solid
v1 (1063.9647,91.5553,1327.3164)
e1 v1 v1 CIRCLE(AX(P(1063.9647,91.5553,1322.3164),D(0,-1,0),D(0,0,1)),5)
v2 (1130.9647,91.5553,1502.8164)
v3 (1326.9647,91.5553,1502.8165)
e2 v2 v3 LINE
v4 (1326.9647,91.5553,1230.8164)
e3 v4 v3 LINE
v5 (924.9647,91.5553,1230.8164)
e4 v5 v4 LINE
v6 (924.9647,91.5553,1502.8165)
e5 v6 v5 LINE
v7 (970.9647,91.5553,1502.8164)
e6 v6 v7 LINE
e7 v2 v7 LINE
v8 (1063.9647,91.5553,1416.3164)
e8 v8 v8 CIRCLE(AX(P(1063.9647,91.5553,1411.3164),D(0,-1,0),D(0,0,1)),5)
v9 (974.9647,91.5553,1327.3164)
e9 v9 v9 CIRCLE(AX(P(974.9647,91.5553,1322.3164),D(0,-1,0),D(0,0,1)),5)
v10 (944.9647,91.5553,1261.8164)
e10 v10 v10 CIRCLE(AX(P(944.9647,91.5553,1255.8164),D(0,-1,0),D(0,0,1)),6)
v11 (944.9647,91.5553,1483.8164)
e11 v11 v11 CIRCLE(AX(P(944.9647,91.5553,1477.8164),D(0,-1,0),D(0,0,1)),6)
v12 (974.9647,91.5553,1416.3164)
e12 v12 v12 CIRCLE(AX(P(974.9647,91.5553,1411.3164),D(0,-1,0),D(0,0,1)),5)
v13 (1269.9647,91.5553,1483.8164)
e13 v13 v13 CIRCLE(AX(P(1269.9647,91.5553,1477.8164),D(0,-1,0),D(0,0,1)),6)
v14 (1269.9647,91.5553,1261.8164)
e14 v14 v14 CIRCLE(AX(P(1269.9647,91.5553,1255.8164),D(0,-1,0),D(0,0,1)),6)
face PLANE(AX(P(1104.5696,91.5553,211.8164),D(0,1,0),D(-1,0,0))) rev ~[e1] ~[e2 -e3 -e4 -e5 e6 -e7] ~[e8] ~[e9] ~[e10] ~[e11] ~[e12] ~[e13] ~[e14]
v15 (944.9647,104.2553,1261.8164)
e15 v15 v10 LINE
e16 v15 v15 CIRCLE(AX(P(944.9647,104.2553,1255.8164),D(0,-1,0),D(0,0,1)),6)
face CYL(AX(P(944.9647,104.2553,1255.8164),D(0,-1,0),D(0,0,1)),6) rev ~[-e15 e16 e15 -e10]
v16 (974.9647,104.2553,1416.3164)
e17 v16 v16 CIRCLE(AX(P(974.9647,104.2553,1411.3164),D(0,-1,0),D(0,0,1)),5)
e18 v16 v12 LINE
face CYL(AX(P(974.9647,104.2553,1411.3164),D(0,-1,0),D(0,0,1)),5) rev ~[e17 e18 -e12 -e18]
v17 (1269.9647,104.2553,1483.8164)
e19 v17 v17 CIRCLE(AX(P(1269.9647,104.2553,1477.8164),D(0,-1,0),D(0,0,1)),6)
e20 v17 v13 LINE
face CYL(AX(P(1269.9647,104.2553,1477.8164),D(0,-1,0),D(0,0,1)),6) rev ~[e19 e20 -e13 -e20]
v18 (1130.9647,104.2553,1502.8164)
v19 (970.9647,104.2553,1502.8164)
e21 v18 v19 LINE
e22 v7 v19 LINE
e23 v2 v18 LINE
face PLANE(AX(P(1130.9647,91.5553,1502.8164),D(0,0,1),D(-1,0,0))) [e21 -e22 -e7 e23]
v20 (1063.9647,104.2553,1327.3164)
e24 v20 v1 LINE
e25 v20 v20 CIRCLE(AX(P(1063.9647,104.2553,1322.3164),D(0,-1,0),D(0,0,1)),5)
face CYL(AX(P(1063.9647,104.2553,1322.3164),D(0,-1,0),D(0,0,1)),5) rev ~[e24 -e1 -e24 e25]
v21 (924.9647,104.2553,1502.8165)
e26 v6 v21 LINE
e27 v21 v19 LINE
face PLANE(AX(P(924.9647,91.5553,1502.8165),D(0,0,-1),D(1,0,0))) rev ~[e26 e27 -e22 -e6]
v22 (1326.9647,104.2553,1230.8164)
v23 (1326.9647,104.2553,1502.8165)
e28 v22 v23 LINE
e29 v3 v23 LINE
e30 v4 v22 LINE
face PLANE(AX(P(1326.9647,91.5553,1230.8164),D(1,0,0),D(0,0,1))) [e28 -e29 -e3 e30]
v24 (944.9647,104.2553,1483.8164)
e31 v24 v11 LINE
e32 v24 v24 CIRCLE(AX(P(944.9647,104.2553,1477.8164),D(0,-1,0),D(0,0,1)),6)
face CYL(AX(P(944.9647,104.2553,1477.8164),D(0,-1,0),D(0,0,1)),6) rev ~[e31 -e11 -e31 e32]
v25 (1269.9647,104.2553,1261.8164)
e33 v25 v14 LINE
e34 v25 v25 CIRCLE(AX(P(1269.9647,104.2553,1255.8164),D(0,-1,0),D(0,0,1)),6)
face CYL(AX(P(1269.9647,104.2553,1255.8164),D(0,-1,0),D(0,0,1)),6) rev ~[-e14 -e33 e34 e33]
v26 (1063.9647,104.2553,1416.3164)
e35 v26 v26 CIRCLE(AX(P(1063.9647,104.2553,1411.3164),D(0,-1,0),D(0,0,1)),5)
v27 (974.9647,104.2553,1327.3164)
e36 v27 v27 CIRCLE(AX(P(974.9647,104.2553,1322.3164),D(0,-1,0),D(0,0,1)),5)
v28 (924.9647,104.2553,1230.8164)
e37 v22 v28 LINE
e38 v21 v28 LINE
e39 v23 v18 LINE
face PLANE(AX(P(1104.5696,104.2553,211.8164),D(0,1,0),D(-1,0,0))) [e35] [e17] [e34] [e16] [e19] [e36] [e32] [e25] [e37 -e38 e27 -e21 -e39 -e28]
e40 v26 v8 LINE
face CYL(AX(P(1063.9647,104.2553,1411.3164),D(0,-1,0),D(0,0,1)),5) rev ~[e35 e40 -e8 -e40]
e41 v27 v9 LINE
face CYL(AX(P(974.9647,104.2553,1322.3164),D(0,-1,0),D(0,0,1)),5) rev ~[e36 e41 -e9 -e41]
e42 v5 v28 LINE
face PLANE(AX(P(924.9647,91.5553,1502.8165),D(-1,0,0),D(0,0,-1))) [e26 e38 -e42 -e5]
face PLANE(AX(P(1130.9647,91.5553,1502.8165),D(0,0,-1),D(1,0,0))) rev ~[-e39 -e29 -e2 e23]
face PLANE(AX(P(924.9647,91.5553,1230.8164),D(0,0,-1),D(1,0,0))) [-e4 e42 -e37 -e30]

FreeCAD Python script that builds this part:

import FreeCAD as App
import Part
import Sketcher
from FreeCAD import Vector


def add_polygon(sketch, points):
    """Adds a closed chain of lines whose ends are joined by coincident constraints."""
    first, n = sketch.GeometryCount, len(points)
    for a, b in zip(points, points[1:] + points[:1]):
        sketch.addGeometry(Part.LineSegment(App.Vector(*a, 0), App.Vector(*b, 0)), False)
    for i in range(n):
        sketch.addConstraint(Sketcher.Constraint("Coincident", first + i, 2, first + (i + 1) % n, 1))

doc = App.newDocument("Part")
body = doc.addObject("PartDesign::Body", "Body")

# Sketch on XZ plane
sketch1 = doc.addObject("Sketcher::SketchObject", "Sketch")
body.addObject(sketch1)
sketch1.AttachmentSupport = (doc.XZ_Plane, [""])
sketch1.MapMode = "FlatFace"
sketch1.AttachmentOffset = App.Placement(Vector(0, 0, -91.5553), App.Rotation())
add_polygon(sketch1, [(971, 1503), (1327, 1503), (1327, 1231), (925, 1231), (925, 1503)])  # lines 0-4
sketch1.addConstraint([
    Sketcher.Constraint("Horizontal", 0),
    Sketcher.Constraint("Vertical", 1),
    Sketcher.Constraint("Horizontal", 2),
    Sketcher.Constraint("Vertical", 3),
    Sketcher.Constraint("Horizontal", 4),
    Sketcher.Constraint("DistanceX", 0, 1, 0, 2, 356.0),
    Sketcher.Constraint("DistanceX", 2, 2, 2, 1, 402.0),
    Sketcher.Constraint("DistanceY", 1, 2, 1, 1, 272.0),
    Sketcher.Constraint("DistanceX", -1, 1, 0, 2, 1326.9647),
    Sketcher.Constraint("DistanceY", -1, 1, 0, 2, 1502.8165),
])
pad1 = doc.addObject("PartDesign::Pad", "Pad")
body.addObject(pad1)
pad1.Profile = sketch1
pad1.Length = 12.7
pad1.Reversed = True

# Sketch on XZ plane
sketch2 = doc.addObject("Sketcher::SketchObject", "Sketch001")
body.addObject(sketch2)
sketch2.AttachmentSupport = (doc.XZ_Plane, [""])
sketch2.MapMode = "FlatFace"
sketch2.AttachmentOffset = App.Placement(Vector(0, 0, -104.2553), App.Rotation())
sketch2.addGeometry([
    Part.Circle(Vector(945, 1478, 0), Vector(0, 0, 1), 6),
    Part.Circle(Vector(945, 1256, 0), Vector(0, 0, 1), 6),
    Part.Circle(Vector(1270, 1256, 0), Vector(0, 0, 1), 6),
    Part.Circle(Vector(1270, 1478, 0), Vector(0, 0, 1), 6),
], False)
sketch2.addConstraint([
    Sketcher.Constraint("Equal", 0, 1),
    Sketcher.Constraint("Equal", 1, 2),
    Sketcher.Constraint("Equal", 2, 3),
    Sketcher.Constraint("Horizontal", 1, 3, 2, 3),
    Sketcher.Constraint("Horizontal", 0, 3, 3, 3),
    Sketcher.Constraint("Vertical", 0, 3, 1, 3),
    Sketcher.Constraint("Vertical", 2, 3, 3, 3),
    Sketcher.Constraint("Diameter", 0, 12.0),
    Sketcher.Constraint("DistanceY", 1, 3, 0, 3, 222.0),
    Sketcher.Constraint("DistanceX", 1, 3, 2, 3, 325.0),
    Sketcher.Constraint("DistanceX", -1, 1, 0, 3, 944.9647),
    Sketcher.Constraint("DistanceY", -1, 1, 0, 3, 1477.8164),
])
doc.recompute()
hole = doc.addObject("PartDesign::Hole", "Hole")
body.addObject(hole)
hole.Profile = sketch2
hole.ThreadType = "None"
hole.Diameter = 12
hole.DepthType = "ThroughAll"
hole.Reversed = True

# Sketch on XZ plane
sketch3 = doc.addObject("Sketcher::SketchObject", "Sketch002")
body.addObject(sketch3)
sketch3.AttachmentSupport = (doc.XZ_Plane, [""])
sketch3.MapMode = "FlatFace"
sketch3.AttachmentOffset = App.Placement(Vector(0, 0, -104.2553), App.Rotation())
sketch3.addGeometry([
    Part.Circle(Vector(975, 1322, 0), Vector(0, 0, 1), 5),
    Part.Circle(Vector(1064, 1322, 0), Vector(0, 0, 1), 5),
    Part.Circle(Vector(1064, 1411, 0), Vector(0, 0, 1), 5),
    Part.Circle(Vector(975, 1411, 0), Vector(0, 0, 1), 5),
], False)
sketch3.addConstraint([
    Sketcher.Constraint("Equal", 0, 1),
    Sketcher.Constraint("Equal", 1, 2),
    Sketcher.Constraint("Equal", 2, 3),
    Sketcher.Constraint("Horizontal", 0, 3, 1, 3),
    Sketcher.Constraint("Horizontal", 2, 3, 3, 3),
    Sketcher.Constraint("Vertical", 1, 3, 2, 3),
    Sketcher.Constraint("Vertical", 0, 3, 3, 3),
    Sketcher.Constraint("Diameter", 0, 10.0),
    Sketcher.Constraint("DistanceX", 0, 3, 1, 3, 89.0),
    Sketcher.Constraint("DistanceY", 1, 3, 2, 3, 89.0),
    Sketcher.Constraint("DistanceX", -1, 1, 0, 3, 974.9647),
    Sketcher.Constraint("DistanceY", -1, 1, 0, 3, 1322.3164),
])
doc.recompute()
hole2 = doc.addObject("PartDesign::Hole", "Hole001")
body.addObject(hole2)
hole2.Profile = sketch3
hole2.ThreadType = "None"
hole2.Diameter = 10
hole2.DepthType = "ThroughAll"
hole2.Reversed = True

doc.recompute()
